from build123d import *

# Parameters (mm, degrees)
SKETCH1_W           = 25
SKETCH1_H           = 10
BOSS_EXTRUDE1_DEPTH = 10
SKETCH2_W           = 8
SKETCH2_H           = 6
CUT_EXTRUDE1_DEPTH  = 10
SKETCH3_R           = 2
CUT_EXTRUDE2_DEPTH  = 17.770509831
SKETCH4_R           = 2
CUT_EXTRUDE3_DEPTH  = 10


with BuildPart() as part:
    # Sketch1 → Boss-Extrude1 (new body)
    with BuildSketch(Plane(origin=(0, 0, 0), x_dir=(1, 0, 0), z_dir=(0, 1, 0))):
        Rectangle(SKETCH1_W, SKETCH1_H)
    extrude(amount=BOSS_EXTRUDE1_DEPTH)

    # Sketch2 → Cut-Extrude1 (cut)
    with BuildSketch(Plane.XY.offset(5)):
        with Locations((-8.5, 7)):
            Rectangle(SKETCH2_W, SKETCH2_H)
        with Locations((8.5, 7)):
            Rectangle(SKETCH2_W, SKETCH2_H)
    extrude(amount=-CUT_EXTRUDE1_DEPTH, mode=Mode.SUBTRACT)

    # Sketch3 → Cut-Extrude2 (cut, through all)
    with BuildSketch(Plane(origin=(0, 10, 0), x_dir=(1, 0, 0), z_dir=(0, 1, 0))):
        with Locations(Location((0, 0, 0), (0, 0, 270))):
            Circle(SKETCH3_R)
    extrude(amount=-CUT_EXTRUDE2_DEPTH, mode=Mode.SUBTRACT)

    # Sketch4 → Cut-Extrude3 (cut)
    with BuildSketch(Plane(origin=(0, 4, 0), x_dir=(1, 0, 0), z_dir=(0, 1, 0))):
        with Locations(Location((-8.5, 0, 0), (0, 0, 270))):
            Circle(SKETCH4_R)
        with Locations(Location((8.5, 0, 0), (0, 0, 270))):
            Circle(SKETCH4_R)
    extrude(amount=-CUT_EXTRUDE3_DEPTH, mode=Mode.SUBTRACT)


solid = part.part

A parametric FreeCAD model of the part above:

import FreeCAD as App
import Part
import Sketcher

V = App.Vector


def add_polygon(sketch, points):
    """Adds a closed chain of lines whose ends are joined by coincident constraints."""
    first, n = sketch.GeometryCount, len(points)
    for a, b in zip(points, points[1:] + points[:1]):
        sketch.addGeometry(Part.LineSegment(App.Vector(*a, 0), App.Vector(*b, 0)), False)
    for i in range(n):
        sketch.addConstraint(Sketcher.Constraint("Coincident", first + i, 2, first + (i + 1) % n, 1))

doc = App.newDocument("Part")
params = doc.addObject("Spreadsheet::Sheet", "Params")
for row, (alias, value) in enumerate([
    ("sketch1_width", "25 mm"),
    ("sketch1_height", "10 mm"),
    ("pad1_length", "10 mm"),
    ("sketch2_width", "8 mm"),
    ("sketch2_height", "6 mm"),
    ("pocket1_length", "10 mm"),
    ("sketch3_diameter", "4 mm"),
    ("sketch4_diameter", "4 mm"),
    ("pocket3_length", "10 mm"),
], start=1):
    params.set(f"A{row}", alias)
    params.set(f"B{row}", "=" + value)
    params.setAlias(f"B{row}", alias)

body = doc.addObject("PartDesign::Body", "Body")

# Sketch on XZ plane
sketch1 = body.newObject("Sketcher::SketchObject", "Sketch")
sketch1.AttachmentSupport = (doc.getObject("XZ_Plane"), [""])
sketch1.MapMode = "FlatFace"
add_polygon(sketch1, [(-12.5, -5), (-12.5, 5), (12.5, 5), (12.5, -5)])  # lines 0-3
sketch1.addConstraint(Sketcher.Constraint("Vertical", 0))
sketch1.addConstraint(Sketcher.Constraint("Horizontal", 1))
sketch1.addConstraint(Sketcher.Constraint("Vertical", 2))
sketch1.addConstraint(Sketcher.Constraint("Horizontal", 3))
sketch1.addConstraint(Sketcher.Constraint("Symmetric", 0, 2, 2, 2, -1, 1))
sketch1.addConstraint(Sketcher.Constraint("DistanceX", 1, 1, 1, 2, 25.0))
sketch1.addConstraint(Sketcher.Constraint("DistanceY", 0, 1, 0, 2, 10.0))
sketch1.setExpression("Constraints[9]", "Params.sketch1_width")
sketch1.setExpression("Constraints[10]", "Params.sketch1_height")
pad1 = body.newObject("PartDesign::Pad", "Pad")
pad1.Profile = sketch1
pad1.setExpression("Length", "Params.pad1_length")
pad1.Reversed = True

# Sketch on XY plane
sketch2 = body.newObject("Sketcher::SketchObject", "Sketch001")
sketch2.AttachmentSupport = (doc.getObject("XY_Plane"), [""])
sketch2.MapMode = "FlatFace"
sketch2.AttachmentOffset = App.Placement(V(0, 0, 5), App.Rotation())
add_polygon(sketch2, [(-12.5, 10), (-12.5, 4), (-4.5, 4), (-4.5, 10)])  # lines 0-3
add_polygon(sketch2, [(4.5, 10), (4.5, 4), (12.5, 4), (12.5, 10)])  # lines 4-7
sketch2.addConstraint(Sketcher.Constraint("Vertical", 0))
sketch2.addConstraint(Sketcher.Constraint("Horizontal", 1))
sketch2.addConstraint(Sketcher.Constraint("Vertical", 2))
sketch2.addConstraint(Sketcher.Constraint("Horizontal", 3))
sketch2.addConstraint(Sketcher.Constraint("Vertical", 4))
sketch2.addConstraint(Sketcher.Constraint("Horizontal", 5))
sketch2.addConstraint(Sketcher.Constraint("Vertical", 6))
sketch2.addConstraint(Sketcher.Constraint("Horizontal", 7))
sketch2.addConstraint(Sketcher.Constraint("Symmetric", 1, 2, 4, 2, -2))
sketch2.addConstraint(Sketcher.Constraint("Symmetric", 3, 2, 6, 2, -2))
sketch2.addConstraint(Sketcher.Constraint("DistanceX", 1, 1, 1, 2, 8.0))
sketch2.addConstraint(Sketcher.Constraint("DistanceY", 0, 2, 0, 1, 6.0))
sketch2.addConstraint(Sketcher.Constraint("DistanceY", -1, 1, 0, 2, 4.0))
sketch2.addConstraint(Sketcher.Constraint("DistanceX", 1, 2, 4, 2, 9.0))
sketch2.setExpression("Constraints[18]", "Params.sketch2_width")
sketch2.setExpression("Constraints[19]", "Params.sketch2_height")
pocket1 = body.newObject("PartDesign::Pocket", "Pocket")
pocket1.Profile = sketch2
pocket1.setExpression("Length", "Params.pocket1_length")

# Sketch on XZ plane
sketch3 = body.newObject("Sketcher::SketchObject", "Sketch002")
sketch3.AttachmentSupport = (doc.getObject("XZ_Plane"), [""])
sketch3.MapMode = "FlatFace"
sketch3.AttachmentOffset = App.Placement(V(0, 0, -10), App.Rotation())
sketch3.addGeometry(Part.Circle(V(0, 0, 0), V(0, 0, 1), 2), False)
sketch3.addConstraint(Sketcher.Constraint("Coincident", 0, 3, -1, 1))
sketch3.addConstraint(Sketcher.Constraint("Diameter", 0, 4.0))
sketch3.setExpression("Constraints[1]", "Params.sketch3_diameter")
pocket2 = body.newObject("PartDesign::Pocket", "Pocket001")
pocket2.Profile = sketch3
pocket2.Type = "ThroughAll"
pocket2.Reversed = True

# Sketch on XZ plane
sketch4 = body.newObject("Sketcher::SketchObject", "Sketch003")
sketch4.AttachmentSupport = (doc.getObject("XZ_Plane"), [""])
sketch4.MapMode = "FlatFace"
sketch4.AttachmentOffset = App.Placement(V(0, 0, -4), App.Rotation())
sketch4.addGeometry(Part.Circle(V(-8.5, 0, 0), V(0, 0, 1), 2), False)
sketch4.addGeometry(Part.Circle(V(8.5, 0, 0), V(0, 0, 1), 2), False)
sketch4.addConstraint(Sketcher.Constraint("Equal", 0, 1))
sketch4.addConstraint(Sketcher.Constraint("Symmetric", 0, 3, 1, 3, -1, 1))
sketch4.addConstraint(Sketcher.Constraint("PointOnObject", 0, 3, -1))
sketch4.addConstraint(Sketcher.Constraint("Diameter", 0, 4.0))
sketch4.addConstraint(Sketcher.Constraint("DistanceX", 0, 3, 1, 3, 17.0))
sketch4.setExpression("Constraints[3]", "Params.sketch4_diameter")
pocket3 = body.newObject("PartDesign::Pocket", "Pocket002")
pocket3.Profile = sketch4
pocket3.setExpression("Length", "Params.pocket3_length")
pocket3.Reversed = True

doc.recompute()
